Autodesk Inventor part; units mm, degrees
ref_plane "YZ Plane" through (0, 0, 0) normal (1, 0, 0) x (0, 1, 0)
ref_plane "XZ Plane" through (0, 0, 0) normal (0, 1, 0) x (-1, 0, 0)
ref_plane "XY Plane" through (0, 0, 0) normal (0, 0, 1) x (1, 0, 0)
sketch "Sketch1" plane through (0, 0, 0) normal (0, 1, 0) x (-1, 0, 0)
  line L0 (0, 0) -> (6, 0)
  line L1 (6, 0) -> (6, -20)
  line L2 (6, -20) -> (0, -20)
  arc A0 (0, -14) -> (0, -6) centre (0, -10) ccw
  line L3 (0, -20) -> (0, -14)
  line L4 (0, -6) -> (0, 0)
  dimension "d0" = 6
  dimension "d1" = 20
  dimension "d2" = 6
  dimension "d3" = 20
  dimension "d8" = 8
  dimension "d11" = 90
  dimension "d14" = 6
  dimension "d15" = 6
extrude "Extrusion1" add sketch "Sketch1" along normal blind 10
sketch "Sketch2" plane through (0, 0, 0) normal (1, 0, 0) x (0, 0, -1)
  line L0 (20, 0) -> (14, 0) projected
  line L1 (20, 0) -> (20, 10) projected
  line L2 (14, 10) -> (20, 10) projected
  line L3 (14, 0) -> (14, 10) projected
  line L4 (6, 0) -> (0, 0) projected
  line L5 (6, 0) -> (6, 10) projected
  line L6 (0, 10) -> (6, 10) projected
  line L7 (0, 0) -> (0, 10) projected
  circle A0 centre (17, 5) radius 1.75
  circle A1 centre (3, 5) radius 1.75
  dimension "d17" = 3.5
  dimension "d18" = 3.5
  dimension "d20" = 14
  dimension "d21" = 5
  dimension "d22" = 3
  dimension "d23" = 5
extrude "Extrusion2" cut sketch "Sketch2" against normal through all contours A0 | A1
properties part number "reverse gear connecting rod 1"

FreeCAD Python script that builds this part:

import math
import FreeCAD as App
import Part
import Sketcher
from FreeCAD import Vector

doc = App.newDocument("Part")
body = doc.addObject("PartDesign::Body", "Body")

# Sketch on XZ plane
sketch1 = body.newObject("Sketcher::SketchObject", "Sketch")
sketch1.AttachmentSupport = (doc.getObject("XZ_Plane"), [""])
sketch1.MapMode = "FlatFace"
sketch1.addGeometry([
    Part.LineSegment(Vector(-6, 0, 0), Vector(0, 0, 0)),  # 0
    Part.LineSegment(Vector(0, 0, 0), Vector(0, -6, 0)),  # 1
    Part.ArcOfCircle(Part.Circle(Vector(0, -10, 0), Vector(0, 0, 1), 4), math.radians(90), math.radians(270)),  # 2
    Part.LineSegment(Vector(0, -14, 0), Vector(0, -20, 0)),  # 3
    Part.LineSegment(Vector(0, -20, 0), Vector(-6, -20, 0)),  # 4
    Part.LineSegment(Vector(-6, -20, 0), Vector(-6, 0, 0)),  # 5
], False)
sketch1.addConstraint([
    Sketcher.Constraint("Coincident", 0, 2, 1, 1),
    Sketcher.Constraint("Coincident", 1, 2, 2, 1),
    Sketcher.Constraint("Coincident", 2, 2, 3, 1),
    Sketcher.Constraint("Coincident", 3, 2, 4, 1),
    Sketcher.Constraint("Coincident", 4, 2, 5, 1),
    Sketcher.Constraint("Coincident", 5, 2, 0, 1),
    Sketcher.Constraint("Horizontal", 0),
    Sketcher.Constraint("Vertical", 1),
    Sketcher.Constraint("Vertical", 3),
    Sketcher.Constraint("Horizontal", 4),
    Sketcher.Constraint("Vertical", 5),
    Sketcher.Constraint("Coincident", 0, 2, -1, 1),
    Sketcher.Constraint("PointOnObject", 2, 3, -2),
    Sketcher.Constraint("PointOnObject", 2, 2, -2),
    Sketcher.Constraint("Equal", 4, 1),
    Sketcher.Constraint("Equal", 1, 3),
    Sketcher.Constraint("Radius", 2, 4.0),
    Sketcher.Constraint("DistanceX", 0, 1, 0, 2, 6.0),
])
pad1 = body.newObject("PartDesign::Pad", "Pad")
pad1.Profile = sketch1
pad1.Length = 10
pad1.Reversed = True

# Sketch on YZ plane
sketch2 = body.newObject("Sketcher::SketchObject", "Sketch001")
sketch2.AttachmentSupport = (doc.getObject("YZ_Plane"), [""])
sketch2.MapMode = "FlatFace"
sketch2.addGeometry([
    Part.Circle(Vector(5, -17, 0), Vector(0, 0, 1), 1.8),
    Part.Circle(Vector(5, -3, 0), Vector(0, 0, 1), 1.8),
], False)
sketch2.addConstraint([
    Sketcher.Constraint("Equal", 0, 1),
    Sketcher.Constraint("Vertical", 0, 3, 1, 3),
    Sketcher.Constraint("Diameter", 0, 3.5),
    Sketcher.Constraint("DistanceX", -1, 1, 0, 3, 5.0),
    Sketcher.Constraint("DistanceY", 1, 3, -1, 1, 3.0),
    Sketcher.Constraint("DistanceY", 0, 3, 1, 3, 14.0),
])
pocket1 = body.newObject("PartDesign::Pocket", "Pocket")
pocket1.Profile = sketch2
pocket1.Type = "ThroughAll"

doc.recompute()
